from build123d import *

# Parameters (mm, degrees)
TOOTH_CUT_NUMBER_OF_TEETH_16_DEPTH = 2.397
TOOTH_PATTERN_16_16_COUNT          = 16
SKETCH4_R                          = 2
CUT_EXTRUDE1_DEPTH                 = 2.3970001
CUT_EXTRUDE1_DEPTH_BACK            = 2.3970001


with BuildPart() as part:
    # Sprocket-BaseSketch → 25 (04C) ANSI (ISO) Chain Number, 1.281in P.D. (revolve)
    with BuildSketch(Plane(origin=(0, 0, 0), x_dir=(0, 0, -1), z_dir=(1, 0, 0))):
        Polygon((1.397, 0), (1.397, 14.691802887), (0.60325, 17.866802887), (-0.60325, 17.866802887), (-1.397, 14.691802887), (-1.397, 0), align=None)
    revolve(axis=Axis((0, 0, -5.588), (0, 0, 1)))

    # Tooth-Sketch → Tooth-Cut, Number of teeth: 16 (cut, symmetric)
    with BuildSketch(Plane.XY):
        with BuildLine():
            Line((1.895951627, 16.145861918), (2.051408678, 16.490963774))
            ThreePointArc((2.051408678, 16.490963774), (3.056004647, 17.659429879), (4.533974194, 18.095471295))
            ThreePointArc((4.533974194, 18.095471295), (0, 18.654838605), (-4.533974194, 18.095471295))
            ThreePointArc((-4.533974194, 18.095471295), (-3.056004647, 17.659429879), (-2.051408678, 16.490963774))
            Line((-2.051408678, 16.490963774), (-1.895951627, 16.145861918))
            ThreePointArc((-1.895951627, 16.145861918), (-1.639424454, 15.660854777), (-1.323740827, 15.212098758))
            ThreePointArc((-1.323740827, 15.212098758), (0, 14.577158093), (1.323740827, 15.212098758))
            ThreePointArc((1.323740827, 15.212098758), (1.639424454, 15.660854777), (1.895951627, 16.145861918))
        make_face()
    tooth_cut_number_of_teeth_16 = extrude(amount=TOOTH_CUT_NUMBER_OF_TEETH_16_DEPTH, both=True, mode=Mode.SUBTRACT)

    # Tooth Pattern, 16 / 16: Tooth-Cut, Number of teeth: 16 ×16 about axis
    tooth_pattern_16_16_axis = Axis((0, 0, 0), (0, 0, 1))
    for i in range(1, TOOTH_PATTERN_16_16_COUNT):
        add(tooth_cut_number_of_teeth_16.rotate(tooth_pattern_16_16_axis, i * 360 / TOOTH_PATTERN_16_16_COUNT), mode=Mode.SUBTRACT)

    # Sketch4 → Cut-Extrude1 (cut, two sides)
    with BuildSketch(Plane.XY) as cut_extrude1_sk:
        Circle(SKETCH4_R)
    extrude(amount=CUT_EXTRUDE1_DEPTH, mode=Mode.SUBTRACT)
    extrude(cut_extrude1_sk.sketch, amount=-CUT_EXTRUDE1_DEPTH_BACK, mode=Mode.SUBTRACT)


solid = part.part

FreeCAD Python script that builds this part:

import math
import FreeCAD as App
import Part
import Sketcher
from FreeCAD import Vector
Q = App.Units.Quantity

doc = App.newDocument("Part")
params = doc.addObject("Spreadsheet::Sheet", "Params")
for row, (alias, value) in enumerate([
    ("revolution_angle", "360 deg"),
    ("pocket1_length", "4.794 mm"),
    ("sketch3_diameter", "4 mm"),
], start=1):
    params.set(f"A{row}", alias)
    params.set(f"B{row}", "=" + value)
    params.setAlias(f"B{row}", alias)

body = doc.addObject("PartDesign::Body", "Body")

sketch1 = body.newObject("Sketcher::SketchObject", "Sketch")
sketch1.AttachmentSupport = (doc.getObject("YZ_Plane"), [""])
sketch1.MapMode = "FlatFace"
sketch1.addGeometry([
    Part.LineSegment(Vector(0, -1.4, 0), Vector(14.7, -1.4, 0)),
    Part.LineSegment(Vector(14.7, -1.4, 0), Vector(17.9, -0.6, 0)),
    Part.LineSegment(Vector(17.9, -0.6, 0), Vector(17.9, 0.6, 0)),
    Part.LineSegment(Vector(17.9, 0.6, 0), Vector(14.7, 1.4, 0)),
    Part.LineSegment(Vector(14.7, 1.4, 0), Vector(0, 1.4, 0)),
    Part.LineSegment(Vector(0, 1.4, 0), Vector(0, -1.4, 0)),
], False)
sketch1.addConstraint([
    Sketcher.Constraint("Coincident", 0, 2, 1, 1),
    Sketcher.Constraint("Coincident", 1, 2, 2, 1),
    Sketcher.Constraint("Coincident", 2, 2, 3, 1),
    Sketcher.Constraint("Coincident", 3, 2, 4, 1),
    Sketcher.Constraint("Coincident", 4, 2, 5, 1),
    Sketcher.Constraint("Coincident", 5, 2, 0, 1),
    Sketcher.Constraint("Horizontal", 0),
    Sketcher.Constraint("Vertical", 2),
    Sketcher.Constraint("Horizontal", 4),
    Sketcher.Constraint("Vertical", 5),
    Sketcher.Constraint("Symmetric", 4, 2, 5, 2, -1, 1),
    Sketcher.Constraint("Vertical", 0, 2, 3, 2),
    Sketcher.Constraint("Equal", 1, 3),
    Sketcher.Constraint("DistanceY", 5, 2, 5, 1, 2.794),
    Sketcher.Constraint("DistanceY", 2, 1, 2, 2, 1.2065),
    Sketcher.Constraint("DistanceX", 0, 2, 1, 2, 3.175),
    Sketcher.Constraint("DistanceX", 0, 1, 0, 2, 14.691803),
])
revolution = body.newObject("PartDesign::Revolution", "Revolution")
revolution.Profile = sketch1
revolution.ReferenceAxis = (sketch1, ["V_Axis"])
revolution.setExpression("Angle", "Params.revolution_angle")

sketch2 = body.newObject("Sketcher::SketchObject", "Sketch001")
sketch2.AttachmentSupport = (doc.getObject("XY_Plane"), [""])
sketch2.MapMode = "FlatFace"
sketch2.addGeometry([
    Part.LineSegment(Vector(1.9, 16.15, 0), Vector(2.05, 16.49, 0)),
    Part.ArcOfCircle(Part.Circle(Vector(4.53, 15.37, 0), Vector(0, 0, 1), 2.72), math.radians(90), math.radians(156)),
    Part.ArcOfCircle(Part.Circle(Vector(0, 0, 0), Vector(0, 0, 1), 18.65), math.radians(76), math.radians(104)),
    Part.ArcOfCircle(Part.Circle(Vector(-4.53, 15.37, 0), Vector(0, 0, 1), 2.72), math.radians(24), math.radians(90)),
    Part.LineSegment(Vector(-2.05, 16.49, 0), Vector(-1.9, 16.15, 0)),
    Part.ArcOfCircle(Part.Circle(Vector(2.06, 17.93, 0), Vector(0, 0, 1), 4.34), math.radians(-155.75), math.radians(-141.25)),
    Part.ArcOfCircle(Part.Circle(Vector(0, 16.27, 0), Vector(0, 0, 1), 1.7), math.radians(-141), math.radians(-39)),
    Part.ArcOfCircle(Part.Circle(Vector(-2.06, 17.93, 0), Vector(0, 0, 1), 4.34), math.radians(-38.75), math.radians(-24.25)),
], False)
sketch2.addConstraint([
    Sketcher.Constraint("Tangent", 0, 2, 1, 2),
    Sketcher.Constraint("Coincident", 1, 1, 2, 1),
    Sketcher.Constraint("Coincident", 2, 2, 3, 2),
    Sketcher.Constraint("Tangent", 3, 1, 4, 1),
    Sketcher.Constraint("Tangent", 4, 2, 5, 1),
    Sketcher.Constraint("Tangent", 5, 2, 6, 1),
    Sketcher.Constraint("Tangent", 6, 2, 7, 1),
    Sketcher.Constraint("Tangent", 7, 2, 0, 1),
    Sketcher.Constraint("Coincident", 2, 3, -1, 1),
    Sketcher.Constraint("Equal", 1, 3),
    Sketcher.Constraint("Equal", 5, 7),
    Sketcher.Constraint("Symmetric", 1, 3, 3, 3, -2),
    Sketcher.Constraint("Symmetric", 5, 3, 7, 3, -2),
    Sketcher.Constraint("Vertical", 3, 3, 2, 2),
    Sketcher.Constraint("Angle", 0, Q("65.75 deg")),
    Sketcher.Constraint("Radius", 1, 2.722822),
    Sketcher.Constraint("Radius", 2, 18.654839),
    Sketcher.Constraint("Radius", 5, 4.338955),
    Sketcher.Constraint("Radius", 6, 1.697355),
    Sketcher.Constraint("Distance", 0, 0.3785),
    Sketcher.Constraint("DistanceY", -1, 1, 5, 2, 15.212099),
])
pocket1 = body.newObject("PartDesign::Pocket", "Pocket")
pocket1.Profile = sketch2
pocket1.setExpression("Length", "Params.pocket1_length")
pocket1.Midplane = True
doc.recompute()

polarpattern = body.newObject("PartDesign::PolarPattern", "PolarPattern")
polarpattern.Originals = [pocket1]
polarpattern.Axis = (doc.getObject("Z_Axis"), [""])
polarpattern.Angle = 360
polarpattern.Occurrences = 16
body.Tip = polarpattern

sketch3 = body.newObject("Sketcher::SketchObject", "Sketch002")
sketch3.AttachmentSupport = (doc.getObject("XY_Plane"), [""])
sketch3.MapMode = "FlatFace"
sketch3.addGeometry(Part.Circle(Vector(0, 0, 0), Vector(0, 0, 1), 2), False)
sketch3.addConstraint([
    Sketcher.Constraint("Coincident", 0, 3, -1, 1),
    Sketcher.Constraint("Diameter", 0, 4.0),
])
sketch3.setExpression("Constraints[1]", "Params.sketch3_diameter")
pocket2 = body.newObject("PartDesign::Pocket", "Pocket001")
pocket2.Profile = sketch3
pocket2.Type = "ThroughAll"
pocket2.Midplane = True

doc.recompute()
